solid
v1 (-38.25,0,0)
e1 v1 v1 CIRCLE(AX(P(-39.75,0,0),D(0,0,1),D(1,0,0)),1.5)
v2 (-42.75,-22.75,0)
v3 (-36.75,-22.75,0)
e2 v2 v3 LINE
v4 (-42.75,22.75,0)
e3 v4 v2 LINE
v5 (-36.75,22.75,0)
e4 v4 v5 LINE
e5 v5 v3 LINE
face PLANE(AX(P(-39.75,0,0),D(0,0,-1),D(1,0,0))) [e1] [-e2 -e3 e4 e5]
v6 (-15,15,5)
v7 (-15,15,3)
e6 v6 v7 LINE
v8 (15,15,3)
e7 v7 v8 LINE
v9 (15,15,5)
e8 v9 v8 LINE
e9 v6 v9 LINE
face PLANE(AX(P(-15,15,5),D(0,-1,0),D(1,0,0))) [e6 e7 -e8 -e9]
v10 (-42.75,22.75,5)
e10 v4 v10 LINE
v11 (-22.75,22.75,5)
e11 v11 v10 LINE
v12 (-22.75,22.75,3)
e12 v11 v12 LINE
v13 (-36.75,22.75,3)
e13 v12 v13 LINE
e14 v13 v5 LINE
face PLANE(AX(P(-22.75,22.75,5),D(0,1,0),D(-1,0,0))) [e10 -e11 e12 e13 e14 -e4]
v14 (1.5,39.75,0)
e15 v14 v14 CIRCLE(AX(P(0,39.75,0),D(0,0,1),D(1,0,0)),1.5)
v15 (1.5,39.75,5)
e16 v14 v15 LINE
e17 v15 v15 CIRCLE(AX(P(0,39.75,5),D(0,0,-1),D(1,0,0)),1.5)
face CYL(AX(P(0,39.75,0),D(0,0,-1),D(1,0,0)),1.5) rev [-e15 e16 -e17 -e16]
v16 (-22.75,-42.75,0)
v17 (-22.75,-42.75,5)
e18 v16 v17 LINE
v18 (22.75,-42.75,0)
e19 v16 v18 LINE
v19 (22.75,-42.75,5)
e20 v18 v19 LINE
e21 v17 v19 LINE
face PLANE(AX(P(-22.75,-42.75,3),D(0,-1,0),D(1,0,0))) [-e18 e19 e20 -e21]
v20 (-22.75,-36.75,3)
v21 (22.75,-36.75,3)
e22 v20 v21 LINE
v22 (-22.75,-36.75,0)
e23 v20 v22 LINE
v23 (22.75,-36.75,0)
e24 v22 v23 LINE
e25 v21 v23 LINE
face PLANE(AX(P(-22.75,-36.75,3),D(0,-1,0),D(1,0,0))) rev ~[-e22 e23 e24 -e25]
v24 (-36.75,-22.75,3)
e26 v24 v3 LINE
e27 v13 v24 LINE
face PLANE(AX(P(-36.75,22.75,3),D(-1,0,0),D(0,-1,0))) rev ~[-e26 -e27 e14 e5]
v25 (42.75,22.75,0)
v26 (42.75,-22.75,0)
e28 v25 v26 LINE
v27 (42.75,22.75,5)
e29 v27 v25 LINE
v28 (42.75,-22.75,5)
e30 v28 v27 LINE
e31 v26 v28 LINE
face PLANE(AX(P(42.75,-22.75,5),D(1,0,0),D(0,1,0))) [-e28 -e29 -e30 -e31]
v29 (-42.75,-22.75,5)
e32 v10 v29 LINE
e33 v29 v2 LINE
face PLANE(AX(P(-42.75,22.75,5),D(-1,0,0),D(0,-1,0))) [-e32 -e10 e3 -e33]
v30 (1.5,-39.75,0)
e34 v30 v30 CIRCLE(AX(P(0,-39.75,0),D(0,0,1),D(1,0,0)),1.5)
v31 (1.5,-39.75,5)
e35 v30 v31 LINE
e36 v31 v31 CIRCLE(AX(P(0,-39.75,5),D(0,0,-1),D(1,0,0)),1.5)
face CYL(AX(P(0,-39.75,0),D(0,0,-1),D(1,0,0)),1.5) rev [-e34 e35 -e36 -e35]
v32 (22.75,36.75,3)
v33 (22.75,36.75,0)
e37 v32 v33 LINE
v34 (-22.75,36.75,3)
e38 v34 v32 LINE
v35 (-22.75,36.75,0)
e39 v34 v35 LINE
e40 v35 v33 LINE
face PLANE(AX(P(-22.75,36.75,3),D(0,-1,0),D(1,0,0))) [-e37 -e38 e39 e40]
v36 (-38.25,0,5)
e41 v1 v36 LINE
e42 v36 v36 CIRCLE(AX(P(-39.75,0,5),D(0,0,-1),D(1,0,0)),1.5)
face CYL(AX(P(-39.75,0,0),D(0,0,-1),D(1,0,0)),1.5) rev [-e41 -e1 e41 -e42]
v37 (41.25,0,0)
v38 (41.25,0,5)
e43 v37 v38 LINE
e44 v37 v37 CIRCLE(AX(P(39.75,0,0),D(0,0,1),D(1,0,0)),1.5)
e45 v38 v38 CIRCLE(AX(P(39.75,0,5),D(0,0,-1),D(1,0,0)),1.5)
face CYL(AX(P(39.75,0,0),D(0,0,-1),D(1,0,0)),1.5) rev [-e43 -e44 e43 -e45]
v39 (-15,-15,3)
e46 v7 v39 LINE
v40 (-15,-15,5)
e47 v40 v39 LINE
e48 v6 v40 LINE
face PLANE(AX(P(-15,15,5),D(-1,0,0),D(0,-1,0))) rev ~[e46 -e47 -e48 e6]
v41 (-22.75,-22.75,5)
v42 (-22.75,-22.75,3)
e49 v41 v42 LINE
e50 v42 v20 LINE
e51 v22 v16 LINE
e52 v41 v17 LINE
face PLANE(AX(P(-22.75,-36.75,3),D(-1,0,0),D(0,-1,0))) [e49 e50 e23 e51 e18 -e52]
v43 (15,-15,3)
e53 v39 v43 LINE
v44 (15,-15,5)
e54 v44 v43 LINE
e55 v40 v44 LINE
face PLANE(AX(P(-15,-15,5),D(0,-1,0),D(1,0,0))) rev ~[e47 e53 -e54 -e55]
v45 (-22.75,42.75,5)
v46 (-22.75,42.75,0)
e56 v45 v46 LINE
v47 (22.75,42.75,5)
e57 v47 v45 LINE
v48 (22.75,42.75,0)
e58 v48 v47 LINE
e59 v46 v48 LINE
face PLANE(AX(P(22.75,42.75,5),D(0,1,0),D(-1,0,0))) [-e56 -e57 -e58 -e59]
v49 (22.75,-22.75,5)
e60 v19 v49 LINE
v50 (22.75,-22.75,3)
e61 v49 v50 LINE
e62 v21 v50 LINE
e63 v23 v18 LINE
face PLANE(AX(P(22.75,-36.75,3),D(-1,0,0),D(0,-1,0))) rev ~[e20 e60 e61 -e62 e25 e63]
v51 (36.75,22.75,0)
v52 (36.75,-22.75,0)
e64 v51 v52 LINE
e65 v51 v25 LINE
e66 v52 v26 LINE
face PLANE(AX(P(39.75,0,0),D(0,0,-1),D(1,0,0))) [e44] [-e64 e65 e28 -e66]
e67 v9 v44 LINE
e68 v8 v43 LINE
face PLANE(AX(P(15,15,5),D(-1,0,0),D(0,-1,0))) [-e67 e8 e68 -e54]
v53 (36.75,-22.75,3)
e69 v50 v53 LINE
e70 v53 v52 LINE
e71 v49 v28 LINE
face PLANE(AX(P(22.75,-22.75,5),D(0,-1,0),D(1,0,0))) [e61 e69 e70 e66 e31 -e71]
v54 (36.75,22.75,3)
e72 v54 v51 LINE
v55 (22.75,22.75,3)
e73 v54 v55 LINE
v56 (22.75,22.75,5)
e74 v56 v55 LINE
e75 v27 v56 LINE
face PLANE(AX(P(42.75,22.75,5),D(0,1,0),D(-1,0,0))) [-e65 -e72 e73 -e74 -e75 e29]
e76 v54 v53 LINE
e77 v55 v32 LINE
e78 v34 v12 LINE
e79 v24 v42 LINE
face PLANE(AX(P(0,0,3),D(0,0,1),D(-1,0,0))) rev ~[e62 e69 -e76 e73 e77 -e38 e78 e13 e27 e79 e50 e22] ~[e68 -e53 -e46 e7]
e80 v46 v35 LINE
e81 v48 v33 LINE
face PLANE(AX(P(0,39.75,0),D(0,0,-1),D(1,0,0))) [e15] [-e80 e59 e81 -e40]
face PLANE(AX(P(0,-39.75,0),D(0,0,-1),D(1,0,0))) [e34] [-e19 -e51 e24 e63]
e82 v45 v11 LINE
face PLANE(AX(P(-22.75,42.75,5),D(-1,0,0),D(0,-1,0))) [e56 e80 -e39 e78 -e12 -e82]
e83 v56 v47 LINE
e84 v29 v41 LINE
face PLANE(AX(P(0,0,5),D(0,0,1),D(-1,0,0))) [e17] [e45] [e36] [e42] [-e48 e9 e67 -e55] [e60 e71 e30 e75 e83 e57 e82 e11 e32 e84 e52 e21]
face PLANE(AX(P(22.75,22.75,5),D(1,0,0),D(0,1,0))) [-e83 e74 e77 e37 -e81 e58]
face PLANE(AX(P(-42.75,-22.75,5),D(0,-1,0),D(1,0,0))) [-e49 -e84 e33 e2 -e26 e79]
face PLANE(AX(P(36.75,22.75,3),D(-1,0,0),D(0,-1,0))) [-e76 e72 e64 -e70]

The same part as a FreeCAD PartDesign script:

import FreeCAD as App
import Part
import Sketcher

V = App.Vector
Q = App.Units.Quantity


def add_polygon(sketch, points):
    """Adds a closed chain of lines whose ends are joined by coincident constraints."""
    first, n = sketch.GeometryCount, len(points)
    for a, b in zip(points, points[1:] + points[:1]):
        sketch.addGeometry(Part.LineSegment(App.Vector(*a, 0), App.Vector(*b, 0)), False)
    for i in range(n):
        sketch.addConstraint(Sketcher.Constraint("Coincident", first + i, 2, first + (i + 1) % n, 1))

doc = App.newDocument("Part")
body = doc.addObject("PartDesign::Body", "Body")

sketch1 = body.newObject("Sketcher::SketchObject", "Sketch")
sketch1.AttachmentSupport = (doc.getObject("XY_Plane"), [""])
sketch1.MapMode = "FlatFace"
sketch1.AttachmentOffset = App.Placement(V(0, 0, 5), App.Rotation())
add_polygon(sketch1, [(23, -43), (-23, -43), (-23, -23), (-43, -23), (-43, 23), (-23, 23), (-23, 43), (23, 43), (23, 23), (43, 23), (43, -23), (23, -23)])
add_polygon(sketch1, [(-15, 15), (-15, -15), (15, -15), (15, 15)])
sketch1.addConstraint([
    Sketcher.Constraint("Horizontal", 0),
    Sketcher.Constraint("Vertical", 1),
    Sketcher.Constraint("Horizontal", 2),
    Sketcher.Constraint("Vertical", 3),
    Sketcher.Constraint("Horizontal", 4),
    Sketcher.Constraint("Vertical", 5),
    Sketcher.Constraint("Horizontal", 6),
    Sketcher.Constraint("Vertical", 7),
    Sketcher.Constraint("Horizontal", 8),
    Sketcher.Constraint("Vertical", 9),
    Sketcher.Constraint("Horizontal", 10),
    Sketcher.Constraint("Vertical", 11),
    Sketcher.Constraint("Vertical", 12),
    Sketcher.Constraint("Horizontal", 13),
    Sketcher.Constraint("Vertical", 14),
    Sketcher.Constraint("Horizontal", 15),
    Sketcher.Constraint("Symmetric", 0, 2, 6, 2, -1, 1),
    Sketcher.Constraint("Symmetric", 2, 2, 8, 2, -1, 1),
    Sketcher.Constraint("Symmetric", 4, 2, 10, 2, -1, 1),
    Sketcher.Constraint("Symmetric", 12, 2, 14, 2, -1, 1),
    Sketcher.Constraint("Symmetric", 4, 2, 7, 2, -2),
    Sketcher.Constraint("Equal", 10, 1),
    Sketcher.Constraint("Equal", 6, 3),
    Sketcher.Constraint("Equal", 15, 12),
    Sketcher.Constraint("DistanceX", 2, 2, 2, 1, Q("20 mm")),
    Sketcher.Constraint("DistanceX", 13, 1, 13, 2, Q("30 mm")),
    Sketcher.Constraint("DistanceX", 0, 2, 0, 1, Q("45.5 mm")),
])
pad1 = body.newObject("PartDesign::Pad", "Pad")
pad1.Profile = sketch1
pad1.Length = 2
pad1.Reversed = True

sketch2 = body.newObject("Sketcher::SketchObject", "Sketch001")
sketch2.AttachmentSupport = (doc.getObject("XY_Plane"), [""])
sketch2.MapMode = "FlatFace"
sketch2.AttachmentOffset = App.Placement(V(0, 0, 3), App.Rotation())
add_polygon(sketch2, [(-23, -43), (-23, -37), (23, -37), (23, -43)])
add_polygon(sketch2, [(-23, 37), (-23, 43), (23, 43), (23, 37)])
add_polygon(sketch2, [(-43, -23), (-43, 23), (-37, 23), (-37, -23)])
add_polygon(sketch2, [(37, -23), (37, 23), (43, 23), (43, -23)])
sketch2.addConstraint([
    Sketcher.Constraint("Vertical", 0),
    Sketcher.Constraint("Horizontal", 1),
    Sketcher.Constraint("Vertical", 2),
    Sketcher.Constraint("Horizontal", 3),
    Sketcher.Constraint("Vertical", 4),
    Sketcher.Constraint("Horizontal", 5),
    Sketcher.Constraint("Vertical", 6),
    Sketcher.Constraint("Horizontal", 7),
    Sketcher.Constraint("Vertical", 8),
    Sketcher.Constraint("Horizontal", 9),
    Sketcher.Constraint("Vertical", 10),
    Sketcher.Constraint("Horizontal", 11),
    Sketcher.Constraint("Vertical", 12),
    Sketcher.Constraint("Horizontal", 13),
    Sketcher.Constraint("Vertical", 14),
    Sketcher.Constraint("Horizontal", 15),
    Sketcher.Constraint("Symmetric", 2, 2, 4, 2, -1, 1),
    Sketcher.Constraint("Symmetric", 0, 2, 6, 2, -1, 1),
    Sketcher.Constraint("Symmetric", 10, 2, 12, 2, -1, 1),
    Sketcher.Constraint("Symmetric", 8, 2, 14, 2, -1, 1),
    Sketcher.Constraint("Horizontal", 9, 2, 12, 2),
    Sketcher.Constraint("Vertical", 3, 2, 4, 2),
    Sketcher.Constraint("Equal", 15, 0),
    Sketcher.Constraint("Equal", 7, 8),
    Sketcher.Constraint("DistanceX", 9, 1, 9, 2, Q("6 mm")),
    Sketcher.Constraint("DistanceX", 1, 1, 1, 2, Q("45.5 mm")),
    Sketcher.Constraint("DistanceX", 8, 2, 7, 2, Q("20 mm")),
    Sketcher.Constraint("DistanceY", 8, 2, 7, 2, Q("14 mm")),
])
pad2 = body.newObject("PartDesign::Pad", "Pad001")
pad2.Profile = sketch2
pad2.Length = 3
pad2.Reversed = True

sketch3 = body.newObject("Sketcher::SketchObject", "Sketch002")
sketch3.AttachmentSupport = (doc.getObject("XY_Plane"), [""])
sketch3.MapMode = "FlatFace"
sketch3.addGeometry([
    Part.Circle(V(-39.8, 0, 0), V(0, 0, 1), 1.5),
    Part.Circle(V(0, 39.8, 0), V(0, 0, 1), 1.5),
    Part.Circle(V(39.8, 0, 0), V(0, 0, 1), 1.5),
    Part.Circle(V(0, -39.8, 0), V(0, 0, 1), 1.5),
], False)
sketch3.addConstraint([
    Sketcher.Constraint("Equal", 0, 1),
    Sketcher.Constraint("Equal", 1, 2),
    Sketcher.Constraint("Equal", 2, 3),
    Sketcher.Constraint("Symmetric", 0, 3, 2, 3, -1, 1),
    Sketcher.Constraint("Symmetric", 1, 3, 3, 3, -1, 1),
    Sketcher.Constraint("PointOnObject", 0, 3, -1),
    Sketcher.Constraint("PointOnObject", 1, 3, -2),
    Sketcher.Constraint("Diameter", 0, Q("3 mm")),
    Sketcher.Constraint("DistanceX", 0, 3, 2, 3, Q("79.5 mm")),
    Sketcher.Constraint("DistanceY", 3, 3, 1, 3, Q("79.5 mm")),
])
pocket1 = body.newObject("PartDesign::Pocket", "Pocket")
pocket1.Profile = sketch3
pocket1.Type = "ThroughAll"
pocket1.Midplane = True

doc.recompute()
